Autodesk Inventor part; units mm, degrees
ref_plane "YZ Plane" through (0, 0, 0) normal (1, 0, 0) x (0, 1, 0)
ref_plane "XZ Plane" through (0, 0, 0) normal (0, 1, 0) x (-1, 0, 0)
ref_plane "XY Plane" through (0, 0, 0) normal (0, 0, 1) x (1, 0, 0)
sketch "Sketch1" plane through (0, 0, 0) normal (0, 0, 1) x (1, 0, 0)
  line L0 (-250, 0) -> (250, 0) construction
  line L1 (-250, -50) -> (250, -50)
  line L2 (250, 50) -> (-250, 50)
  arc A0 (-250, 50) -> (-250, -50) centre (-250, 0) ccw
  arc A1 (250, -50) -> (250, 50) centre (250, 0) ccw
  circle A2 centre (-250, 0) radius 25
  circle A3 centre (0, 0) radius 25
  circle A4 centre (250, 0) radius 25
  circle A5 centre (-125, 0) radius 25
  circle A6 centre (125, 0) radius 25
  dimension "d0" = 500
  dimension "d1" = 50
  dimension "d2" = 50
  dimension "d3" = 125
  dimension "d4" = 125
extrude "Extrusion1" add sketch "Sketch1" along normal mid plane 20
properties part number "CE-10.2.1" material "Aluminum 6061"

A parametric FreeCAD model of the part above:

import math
import FreeCAD as App
import Part
import Sketcher
Q = App.Units.Quantity

doc = App.newDocument("Part")
body = doc.addObject("PartDesign::Body", "Body")

sketch1 = body.newObject("Sketcher::SketchObject", "Sketch")
sketch1.AttachmentSupport = (doc.getObject("XY_Plane"), [""])
sketch1.MapMode = "FlatFace"
sketch1.addGeometry([
    Part.ArcOfCircle(Part.Circle(App.Vector(-250, 0, 0), App.Vector(0, 0, 1), 50), math.radians(90), math.radians(270)),
    Part.LineSegment(App.Vector(-250, -50, 0), App.Vector(250, -50, 0)),
    Part.ArcOfCircle(Part.Circle(App.Vector(250, 0, 0), App.Vector(0, 0, 1), 50), math.radians(-90), math.radians(90)),
    Part.LineSegment(App.Vector(250, 50, 0), App.Vector(-250, 50, 0)),
    Part.Circle(App.Vector(-250, 0, 0), App.Vector(0, 0, 1), 25),
    Part.Circle(App.Vector(-125, 0, 0), App.Vector(0, 0, 1), 25),
    Part.Circle(App.Vector(0, 0, 0), App.Vector(0, 0, 1), 25),
    Part.Circle(App.Vector(125, 0, 0), App.Vector(0, 0, 1), 25),
    Part.Circle(App.Vector(250, 0, 0), App.Vector(0, 0, 1), 25),
], False)
sketch1.addConstraint([
    Sketcher.Constraint("Tangent", 0, 2, 1, 1),
    Sketcher.Constraint("Tangent", 1, 2, 2, 1),
    Sketcher.Constraint("Tangent", 2, 2, 3, 1),
    Sketcher.Constraint("Tangent", 3, 2, 0, 1),
    Sketcher.Constraint("Horizontal", 1),
    Sketcher.Constraint("Horizontal", 3),
    Sketcher.Constraint("Coincident", 6, 3, -1, 1),
    Sketcher.Constraint("Coincident", 4, 3, 0, 3),
    Sketcher.Constraint("Coincident", 8, 3, 2, 3),
    Sketcher.Constraint("Equal", 4, 5),
    Sketcher.Constraint("Equal", 5, 6),
    Sketcher.Constraint("Equal", 6, 7),
    Sketcher.Constraint("Equal", 7, 8),
    Sketcher.Constraint("Symmetric", 0, 3, 2, 3, -1, 1),
    Sketcher.Constraint("Symmetric", 5, 3, 7, 3, -1, 1),
    Sketcher.Constraint("PointOnObject", 5, 3, -1),
    Sketcher.Constraint("Diameter", 4, Q("50 mm")),
    Sketcher.Constraint("Radius", 0, Q("50 mm")),
    Sketcher.Constraint("DistanceX", 1, 1, 1, 2, Q("500 mm")),
    Sketcher.Constraint("DistanceX", 5, 3, -1, 1, Q("125 mm")),
])
pad1 = body.newObject("PartDesign::Pad", "Pad")
pad1.Profile = sketch1
pad1.Length = 20
pad1.Midplane = True

doc.recompute()
